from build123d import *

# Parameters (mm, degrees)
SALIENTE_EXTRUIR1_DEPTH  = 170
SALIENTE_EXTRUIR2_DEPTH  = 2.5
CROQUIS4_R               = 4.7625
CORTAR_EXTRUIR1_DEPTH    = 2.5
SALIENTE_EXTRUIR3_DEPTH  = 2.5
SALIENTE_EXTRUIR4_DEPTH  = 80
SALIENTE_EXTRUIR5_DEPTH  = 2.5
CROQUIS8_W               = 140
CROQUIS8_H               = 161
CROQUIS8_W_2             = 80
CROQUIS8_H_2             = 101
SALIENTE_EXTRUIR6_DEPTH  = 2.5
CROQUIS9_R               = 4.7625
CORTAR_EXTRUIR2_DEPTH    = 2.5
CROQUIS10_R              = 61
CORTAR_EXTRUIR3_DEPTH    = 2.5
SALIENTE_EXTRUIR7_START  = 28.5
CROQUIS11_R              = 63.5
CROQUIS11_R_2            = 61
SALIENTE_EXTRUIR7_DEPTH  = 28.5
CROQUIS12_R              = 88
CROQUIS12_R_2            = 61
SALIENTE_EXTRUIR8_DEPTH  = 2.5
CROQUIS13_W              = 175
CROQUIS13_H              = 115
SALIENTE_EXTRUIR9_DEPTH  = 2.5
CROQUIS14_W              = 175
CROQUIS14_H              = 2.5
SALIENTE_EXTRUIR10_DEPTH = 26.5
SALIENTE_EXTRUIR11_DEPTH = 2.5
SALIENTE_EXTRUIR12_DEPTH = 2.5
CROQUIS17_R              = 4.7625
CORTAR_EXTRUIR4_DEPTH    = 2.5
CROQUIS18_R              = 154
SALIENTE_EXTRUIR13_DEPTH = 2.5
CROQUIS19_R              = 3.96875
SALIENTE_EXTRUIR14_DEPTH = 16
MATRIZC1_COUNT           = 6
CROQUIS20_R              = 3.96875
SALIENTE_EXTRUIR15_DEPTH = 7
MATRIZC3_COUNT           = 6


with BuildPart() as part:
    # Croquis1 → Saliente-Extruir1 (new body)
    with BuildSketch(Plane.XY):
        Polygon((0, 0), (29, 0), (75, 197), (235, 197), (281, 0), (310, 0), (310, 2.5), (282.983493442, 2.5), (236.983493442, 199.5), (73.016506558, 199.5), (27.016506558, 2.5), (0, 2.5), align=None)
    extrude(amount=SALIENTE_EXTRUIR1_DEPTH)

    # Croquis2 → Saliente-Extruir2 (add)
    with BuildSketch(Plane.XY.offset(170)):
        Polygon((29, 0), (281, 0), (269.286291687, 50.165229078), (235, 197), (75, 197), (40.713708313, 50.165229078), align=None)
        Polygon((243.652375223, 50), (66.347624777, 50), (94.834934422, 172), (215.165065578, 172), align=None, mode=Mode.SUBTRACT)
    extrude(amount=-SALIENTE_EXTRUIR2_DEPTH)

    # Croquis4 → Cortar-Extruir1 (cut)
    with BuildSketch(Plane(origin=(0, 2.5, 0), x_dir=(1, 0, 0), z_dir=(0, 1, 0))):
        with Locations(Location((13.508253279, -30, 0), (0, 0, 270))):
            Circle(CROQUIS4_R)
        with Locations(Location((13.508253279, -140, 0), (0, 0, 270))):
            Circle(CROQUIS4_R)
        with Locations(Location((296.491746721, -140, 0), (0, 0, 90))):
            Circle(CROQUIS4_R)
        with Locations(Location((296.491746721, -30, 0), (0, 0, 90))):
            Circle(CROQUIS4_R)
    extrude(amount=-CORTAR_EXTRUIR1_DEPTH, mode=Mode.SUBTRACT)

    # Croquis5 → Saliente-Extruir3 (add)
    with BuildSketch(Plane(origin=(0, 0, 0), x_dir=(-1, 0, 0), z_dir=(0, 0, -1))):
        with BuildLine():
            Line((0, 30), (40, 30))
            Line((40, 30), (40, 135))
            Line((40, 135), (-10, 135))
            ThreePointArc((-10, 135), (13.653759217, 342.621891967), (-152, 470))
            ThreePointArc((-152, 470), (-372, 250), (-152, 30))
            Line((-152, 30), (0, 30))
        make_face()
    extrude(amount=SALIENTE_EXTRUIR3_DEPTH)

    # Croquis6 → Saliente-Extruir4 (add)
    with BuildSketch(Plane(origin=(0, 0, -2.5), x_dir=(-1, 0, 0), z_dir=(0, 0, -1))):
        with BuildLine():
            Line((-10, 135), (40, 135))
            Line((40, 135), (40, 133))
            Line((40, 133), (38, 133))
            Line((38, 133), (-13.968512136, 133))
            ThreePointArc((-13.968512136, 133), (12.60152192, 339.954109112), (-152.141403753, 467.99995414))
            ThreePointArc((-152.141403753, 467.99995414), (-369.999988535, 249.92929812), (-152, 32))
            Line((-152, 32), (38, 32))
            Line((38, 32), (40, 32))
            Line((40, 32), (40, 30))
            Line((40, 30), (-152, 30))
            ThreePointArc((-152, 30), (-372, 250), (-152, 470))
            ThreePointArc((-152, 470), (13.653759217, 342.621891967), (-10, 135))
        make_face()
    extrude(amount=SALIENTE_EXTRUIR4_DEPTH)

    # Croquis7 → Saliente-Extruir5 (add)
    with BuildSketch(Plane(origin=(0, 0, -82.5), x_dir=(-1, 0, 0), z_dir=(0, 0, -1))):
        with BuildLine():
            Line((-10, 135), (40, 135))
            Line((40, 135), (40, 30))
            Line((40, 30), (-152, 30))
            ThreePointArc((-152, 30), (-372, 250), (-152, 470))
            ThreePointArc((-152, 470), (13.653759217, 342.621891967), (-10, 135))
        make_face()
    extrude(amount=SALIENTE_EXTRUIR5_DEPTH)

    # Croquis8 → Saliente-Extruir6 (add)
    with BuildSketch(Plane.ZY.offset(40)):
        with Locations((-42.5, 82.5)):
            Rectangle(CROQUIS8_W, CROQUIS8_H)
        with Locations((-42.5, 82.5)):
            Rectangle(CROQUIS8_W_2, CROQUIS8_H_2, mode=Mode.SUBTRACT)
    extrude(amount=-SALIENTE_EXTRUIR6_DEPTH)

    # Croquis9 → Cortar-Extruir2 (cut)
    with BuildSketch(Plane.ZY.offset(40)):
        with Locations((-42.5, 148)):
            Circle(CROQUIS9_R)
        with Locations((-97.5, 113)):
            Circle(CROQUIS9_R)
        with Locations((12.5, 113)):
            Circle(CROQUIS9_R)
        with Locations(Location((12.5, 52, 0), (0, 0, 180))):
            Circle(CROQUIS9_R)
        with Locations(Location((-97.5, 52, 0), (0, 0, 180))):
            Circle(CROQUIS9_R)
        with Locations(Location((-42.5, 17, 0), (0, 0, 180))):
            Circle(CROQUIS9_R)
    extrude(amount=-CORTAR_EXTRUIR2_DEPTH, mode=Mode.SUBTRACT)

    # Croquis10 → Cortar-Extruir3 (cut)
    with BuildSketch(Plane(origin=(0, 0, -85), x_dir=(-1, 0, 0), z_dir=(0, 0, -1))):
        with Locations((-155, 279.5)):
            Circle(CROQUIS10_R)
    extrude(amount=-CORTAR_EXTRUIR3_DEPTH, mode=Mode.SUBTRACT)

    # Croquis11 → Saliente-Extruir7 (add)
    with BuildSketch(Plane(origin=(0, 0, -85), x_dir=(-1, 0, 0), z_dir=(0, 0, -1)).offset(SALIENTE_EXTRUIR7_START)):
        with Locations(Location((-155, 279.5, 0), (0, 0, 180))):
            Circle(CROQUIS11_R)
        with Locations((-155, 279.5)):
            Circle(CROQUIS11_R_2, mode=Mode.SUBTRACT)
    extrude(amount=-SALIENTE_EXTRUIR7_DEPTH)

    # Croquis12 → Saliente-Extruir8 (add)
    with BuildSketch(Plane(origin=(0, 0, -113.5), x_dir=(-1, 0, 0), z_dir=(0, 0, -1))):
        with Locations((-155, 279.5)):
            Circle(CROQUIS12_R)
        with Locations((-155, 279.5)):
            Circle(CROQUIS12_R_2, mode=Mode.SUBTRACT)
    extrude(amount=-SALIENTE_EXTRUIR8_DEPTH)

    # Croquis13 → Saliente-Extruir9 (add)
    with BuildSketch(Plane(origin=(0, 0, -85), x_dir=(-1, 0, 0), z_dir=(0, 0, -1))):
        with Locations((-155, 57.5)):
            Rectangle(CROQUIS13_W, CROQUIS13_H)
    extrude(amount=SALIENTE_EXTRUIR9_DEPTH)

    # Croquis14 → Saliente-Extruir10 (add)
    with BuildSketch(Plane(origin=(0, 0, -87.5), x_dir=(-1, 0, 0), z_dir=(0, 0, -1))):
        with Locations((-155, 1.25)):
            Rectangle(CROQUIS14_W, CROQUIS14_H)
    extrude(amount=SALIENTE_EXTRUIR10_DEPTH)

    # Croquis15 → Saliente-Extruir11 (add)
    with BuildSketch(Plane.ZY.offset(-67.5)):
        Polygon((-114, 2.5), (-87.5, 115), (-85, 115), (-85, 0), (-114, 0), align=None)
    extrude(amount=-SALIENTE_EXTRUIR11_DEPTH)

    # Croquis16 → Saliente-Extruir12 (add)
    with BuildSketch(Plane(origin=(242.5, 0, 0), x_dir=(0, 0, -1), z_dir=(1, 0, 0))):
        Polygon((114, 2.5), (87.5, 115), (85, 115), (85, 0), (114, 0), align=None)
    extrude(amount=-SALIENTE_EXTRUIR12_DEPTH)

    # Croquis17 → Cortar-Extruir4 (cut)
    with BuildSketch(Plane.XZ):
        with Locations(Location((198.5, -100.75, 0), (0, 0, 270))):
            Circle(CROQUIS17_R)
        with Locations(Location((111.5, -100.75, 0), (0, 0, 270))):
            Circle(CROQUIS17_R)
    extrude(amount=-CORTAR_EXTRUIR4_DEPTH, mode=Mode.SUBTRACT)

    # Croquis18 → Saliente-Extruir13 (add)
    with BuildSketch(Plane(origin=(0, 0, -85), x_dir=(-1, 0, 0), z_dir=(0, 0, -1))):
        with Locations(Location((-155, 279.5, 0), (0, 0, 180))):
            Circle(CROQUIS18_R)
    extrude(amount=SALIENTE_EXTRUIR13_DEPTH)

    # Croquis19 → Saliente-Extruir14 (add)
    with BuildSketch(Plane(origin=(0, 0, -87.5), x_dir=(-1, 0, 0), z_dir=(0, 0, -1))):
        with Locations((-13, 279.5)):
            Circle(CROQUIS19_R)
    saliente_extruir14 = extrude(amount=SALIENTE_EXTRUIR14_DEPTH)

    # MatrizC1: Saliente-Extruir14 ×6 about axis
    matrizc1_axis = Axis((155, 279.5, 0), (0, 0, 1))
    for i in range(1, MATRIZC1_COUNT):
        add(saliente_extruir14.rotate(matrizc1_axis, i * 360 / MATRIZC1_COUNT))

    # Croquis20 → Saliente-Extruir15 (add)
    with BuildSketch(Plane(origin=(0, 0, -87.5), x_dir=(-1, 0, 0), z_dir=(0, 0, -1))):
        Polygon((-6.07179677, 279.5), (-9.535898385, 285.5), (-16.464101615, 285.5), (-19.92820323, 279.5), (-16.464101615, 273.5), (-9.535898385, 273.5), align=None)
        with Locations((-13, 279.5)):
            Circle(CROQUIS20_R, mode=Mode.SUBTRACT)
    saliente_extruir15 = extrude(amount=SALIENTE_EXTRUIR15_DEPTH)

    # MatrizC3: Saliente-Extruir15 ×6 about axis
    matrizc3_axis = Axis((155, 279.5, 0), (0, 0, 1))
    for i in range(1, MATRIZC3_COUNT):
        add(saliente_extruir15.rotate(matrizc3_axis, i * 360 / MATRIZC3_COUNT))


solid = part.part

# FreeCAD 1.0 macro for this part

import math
import FreeCAD as App
import Part
import Sketcher
from FreeCAD import Vector
Q = App.Units.Quantity


def add_polygon(sketch, points):
    """Adds a closed chain of lines whose ends are joined by coincident constraints."""
    first, n = sketch.GeometryCount, len(points)
    for a, b in zip(points, points[1:] + points[:1]):
        sketch.addGeometry(Part.LineSegment(App.Vector(*a, 0), App.Vector(*b, 0)), False)
    for i in range(n):
        sketch.addConstraint(Sketcher.Constraint("Coincident", first + i, 2, first + (i + 1) % n, 1))

doc = App.newDocument("Part")
body = doc.addObject("PartDesign::Body", "Body")

# Sketch on XY plane
sketch1 = body.newObject("Sketcher::SketchObject", "Sketch")
sketch1.AttachmentSupport = (doc.getObject("XY_Plane"), [""])
sketch1.MapMode = "FlatFace"
add_polygon(sketch1, [(0, 0), (29, 0), (75, 197), (235, 197), (281, 0), (310, 0), (310, 2.5), (283, 2.5), (237, 199.5), (73, 199.5), (27, 2.5), (0, 2.5)])  # lines 0-11
sketch1.addConstraint([
    Sketcher.Constraint("Horizontal", 0),
    Sketcher.Constraint("Horizontal", 2),
    Sketcher.Constraint("Horizontal", 4),
    Sketcher.Constraint("Vertical", 5),
    Sketcher.Constraint("Horizontal", 6),
    Sketcher.Constraint("Horizontal", 8),
    Sketcher.Constraint("Horizontal", 10),
    Sketcher.Constraint("Vertical", 11),
    Sketcher.Constraint("Coincident", 11, 2, -1, 1),
    Sketcher.Constraint("PointOnObject", 3, 2, -1),
    Sketcher.Constraint("Parallel", 3, 7),
    Sketcher.Constraint("Parallel", 1, 9),
    Sketcher.Constraint("Horizontal", 6, 2, 9, 2),
    Sketcher.Constraint("Equal", 0, 4),
    Sketcher.Constraint("Equal", 6, 10),
    Sketcher.Constraint("Equal", 1, 3),
    Sketcher.Constraint("Equal", 3, 7),
    Sketcher.Constraint("DistanceX", 0, 1, 0, 2, Q("29 mm")),
    Sketcher.Constraint("DistanceX", 2, 1, 2, 2, Q("160 mm")),
    Sketcher.Constraint("DistanceY", 5, 1, 5, 2, Q("2.5 mm")),
    Sketcher.Constraint("DistanceX", -1, 1, 1, 2, Q("75 mm")),
    Sketcher.Constraint("DistanceY", -1, 1, 1, 2, Q("197 mm")),
    Sketcher.Constraint("DistanceX", 6, 2, 6, 1, Q("27.016507 mm")),
])
pad1 = body.newObject("PartDesign::Pad", "Pad")
pad1.Profile = sketch1
pad1.Length = 170

# Sketch on XY plane
sketch2 = body.newObject("Sketcher::SketchObject", "Sketch001")
sketch2.AttachmentSupport = (doc.getObject("XY_Plane"), [""])
sketch2.MapMode = "FlatFace"
sketch2.AttachmentOffset = App.Placement(Vector(0, 0, 170), App.Rotation())
add_polygon(sketch2, [(29, 0), (281, 0), (269, 50), (235, 197), (75, 197), (41, 50)])  # lines 0-5
add_polygon(sketch2, [(215, 172), (244, 50), (66, 50), (95, 172)])  # lines 6-9
sketch2.addConstraint([
    Sketcher.Constraint("Horizontal", 0),
    Sketcher.Constraint("Horizontal", 3),
    Sketcher.Constraint("Horizontal", 7),
    Sketcher.Constraint("Horizontal", 9),
    Sketcher.Constraint("PointOnObject", 0, 2, -1),
    Sketcher.Constraint("Parallel", 1, 2),
    Sketcher.Constraint("Parallel", 4, 5),
    Sketcher.Constraint("Parallel", 2, 6),
    Sketcher.Constraint("Parallel", 5, 8),
    Sketcher.Constraint("Horizontal", 1, 2, 4, 2),
    Sketcher.Constraint("Equal", 2, 4),
    Sketcher.Constraint("DistanceX", 0, 1, 0, 2, Q("252 mm")),
    Sketcher.Constraint("DistanceX", 3, 2, 3, 1, Q("160 mm")),
    Sketcher.Constraint("DistanceX", -1, 1, 0, 2, Q("281 mm")),
    Sketcher.Constraint("DistanceY", -1, 1, 2, 2, Q("197 mm")),
    Sketcher.Constraint("DistanceY", -1, 1, 6, 2, Q("50 mm")),
    Sketcher.Constraint("DistanceY", -1, 1, 8, 2, Q("172 mm")),
    Sketcher.Constraint("DistanceX", 7, 2, 7, 1, Q("177.30475 mm")),
    Sketcher.Constraint("Distance", 1, Q("51.514669 mm")),
    Sketcher.Constraint("DistanceX", -1, 1, 6, 2, Q("243.652375 mm")),
])
pad2 = body.newObject("PartDesign::Pad", "Pad001")
pad2.Profile = sketch2
pad2.Length = 2.5
pad2.Reversed = True

# Sketch on XZ plane
sketch3 = body.newObject("Sketcher::SketchObject", "Sketch002")
sketch3.AttachmentSupport = (doc.getObject("XZ_Plane"), [""])
sketch3.MapMode = "FlatFace"
sketch3.AttachmentOffset = App.Placement(Vector(0, 0, -2.5), App.Rotation())
sketch3.addGeometry([
    Part.Circle(Vector(13.5, 30, 0), Vector(0, 0, 1), 4.8),
    Part.Circle(Vector(13.5, 140, 0), Vector(0, 0, 1), 4.8),
    Part.Circle(Vector(296.5, 140, 0), Vector(0, 0, 1), 4.8),
    Part.Circle(Vector(296.5, 30, 0), Vector(0, 0, 1), 4.8),
], False)
sketch3.addConstraint([
    Sketcher.Constraint("Equal", 0, 1),
    Sketcher.Constraint("Equal", 1, 2),
    Sketcher.Constraint("Equal", 2, 3),
    Sketcher.Constraint("Horizontal", 1, 3, 2, 3),
    Sketcher.Constraint("Horizontal", 0, 3, 3, 3),
    Sketcher.Constraint("Vertical", 0, 3, 1, 3),
    Sketcher.Constraint("Vertical", 2, 3, 3, 3),
    Sketcher.Constraint("Diameter", 0, Q("9.525 mm")),
    Sketcher.Constraint("DistanceY", -1, 1, 0, 3, Q("30 mm")),
    Sketcher.Constraint("DistanceY", -1, 1, 1, 3, Q("140 mm")),
    Sketcher.Constraint("DistanceX", -1, 1, 0, 3, Q("13.508253 mm")),
    Sketcher.Constraint("DistanceX", -1, 1, 2, 3, Q("296.491747 mm")),
])
pocket1 = body.newObject("PartDesign::Pocket", "Pocket")
pocket1.Profile = sketch3
pocket1.Length = 2.5
pocket1.Reversed = True

# Sketch on XY plane
sketch4 = body.newObject("Sketcher::SketchObject", "Sketch003")
sketch4.AttachmentSupport = (doc.getObject("XY_Plane"), [""])
sketch4.MapMode = "FlatFace"
sketch4.addGeometry([
    Part.LineSegment(Vector(-40, 30, 0), Vector(-40, 135, 0)),  # 0
    Part.LineSegment(Vector(-40, 135, 0), Vector(10, 135, 0)),  # 1
    Part.ArcOfCircle(Part.Circle(Vector(182, 260, 0), Vector(0, 0, 1), 212), math.radians(98), math.radians(216)),  # 2
    Part.ArcOfCircle(Part.Circle(Vector(152, 250, 0), Vector(0, 0, 1), 220), math.radians(-90), math.radians(90)),  # 3
    Part.LineSegment(Vector(152, 30, 0), Vector(-40, 30, 0)),  # 4
], False)
sketch4.addConstraint([
    Sketcher.Constraint("Coincident", 0, 2, 1, 1),
    Sketcher.Constraint("Coincident", 1, 2, 2, 2),
    Sketcher.Constraint("Coincident", 2, 1, 3, 2),
    Sketcher.Constraint("Tangent", 3, 1, 4, 1),
    Sketcher.Constraint("Coincident", 4, 2, 0, 1),
    Sketcher.Constraint("Vertical", 0),
    Sketcher.Constraint("Horizontal", 1),
    Sketcher.Constraint("Horizontal", 4),
    Sketcher.Constraint("Vertical", 3, 3, 2, 1),
    Sketcher.Constraint("Radius", 3, Q("220 mm")),
    Sketcher.Constraint("DistanceX", 1, 1, 1, 2, Q("50 mm")),
    Sketcher.Constraint("DistanceX", 4, 2, 4, 1, Q("192 mm")),
    Sketcher.Constraint("DistanceY", 0, 1, 0, 2, Q("105 mm")),
    Sketcher.Constraint("DistanceX", -1, 1, 3, 3, Q("152 mm")),
    Sketcher.Constraint("DistanceY", -1, 1, 3, 3, Q("250 mm")),
    Sketcher.Constraint("Radius", 2, Q("212.372309 mm")),
])
pad3 = body.newObject("PartDesign::Pad", "Pad002")
pad3.Profile = sketch4
pad3.Length = 2.5
pad3.Reversed = True

# Sketch on XY plane
sketch5 = body.newObject("Sketcher::SketchObject", "Sketch004")
sketch5.AttachmentSupport = (doc.getObject("XY_Plane"), [""])
sketch5.MapMode = "FlatFace"
sketch5.AttachmentOffset = App.Placement(Vector(0, 0, -2.5), App.Rotation())
sketch5.addGeometry([
    Part.LineSegment(Vector(-40, 135, 0), Vector(10, 135, 0)),  # 0
    Part.ArcOfCircle(Part.Circle(Vector(181.9, 259.7, 0), Vector(0, 0, 1), 212.4), math.radians(98), math.radians(216)),  # 1
    Part.ArcOfCircle(Part.Circle(Vector(152, 250, 0), Vector(0, 0, 1), 220), math.radians(-90), math.radians(90)),  # 2
    Part.LineSegment(Vector(152, 30, 0), Vector(-40, 30, 0)),  # 3
    Part.LineSegment(Vector(-40, 30, 0), Vector(-40, 32, 0)),  # 4
    Part.LineSegment(Vector(-40, 32, 0), Vector(152, 32, 0)),  # 5
    Part.ArcOfCircle(Part.Circle(Vector(152, 250, 0), Vector(0, 0, 1), 218), math.radians(-90), math.radians(90)),  # 6
    Part.ArcOfCircle(Part.Circle(Vector(181.9, 259.7, 0), Vector(0, 0, 1), 210.4), math.radians(98), math.radians(217)),  # 7
    Part.LineSegment(Vector(14, 133, 0), Vector(-40, 133, 0)),  # 8
    Part.LineSegment(Vector(-40, 133, 0), Vector(-40, 135, 0)),  # 9
], False)
sketch5.addConstraint([
    Sketcher.Constraint("Coincident", 0, 2, 1, 2),
    Sketcher.Constraint("Coincident", 1, 1, 2, 2),
    Sketcher.Constraint("Tangent", 2, 1, 3, 1),
    Sketcher.Constraint("Coincident", 3, 2, 4, 1),
    Sketcher.Constraint("Coincident", 4, 2, 5, 1),
    Sketcher.Constraint("Tangent", 5, 2, 6, 1),
    Sketcher.Constraint("Coincident", 6, 2, 7, 1),
    Sketcher.Constraint("Coincident", 7, 2, 8, 1),
    Sketcher.Constraint("Coincident", 8, 2, 9, 1),
    Sketcher.Constraint("Coincident", 9, 2, 0, 1),
    Sketcher.Constraint("Horizontal", 0),
    Sketcher.Constraint("Horizontal", 3),
    Sketcher.Constraint("Vertical", 4),
    Sketcher.Constraint("Horizontal", 5),
    Sketcher.Constraint("Horizontal", 8),
    Sketcher.Constraint("Vertical", 9),
    Sketcher.Constraint("Coincident", 6, 3, 2, 3),
    Sketcher.Constraint("Coincident", 7, 3, 1, 3),
    Sketcher.Constraint("Vertical", 6, 3, 1, 1),
    Sketcher.Constraint("Vertical", 4, 2, 8, 2),
    Sketcher.Constraint("Equal", 4, 9),
    Sketcher.Constraint("Radius", 2, Q("220 mm")),
    Sketcher.Constraint("Radius", 6, Q("218 mm")),
    Sketcher.Constraint("DistanceX", 0, 1, 0, 2, Q("50 mm")),
    Sketcher.Constraint("DistanceX", 3, 2, 3, 1, Q("192 mm")),
    Sketcher.Constraint("DistanceX", -1, 1, 2, 3, Q("152 mm")),
    Sketcher.Constraint("DistanceY", -1, 1, 2, 3, Q("250 mm")),
    Sketcher.Constraint("DistanceY", -1, 1, 0, 2, Q("135 mm")),
    Sketcher.Constraint("Radius", 1, Q("212.372309 mm")),
    Sketcher.Constraint("Radius", 7, Q("210.372309 mm")),
])
pad4 = body.newObject("PartDesign::Pad", "Pad003")
pad4.Profile = sketch5
pad4.Length = 80
pad4.Reversed = True

# Sketch on XY plane
sketch6 = body.newObject("Sketcher::SketchObject", "Sketch005")
sketch6.AttachmentSupport = (doc.getObject("XY_Plane"), [""])
sketch6.MapMode = "FlatFace"
sketch6.AttachmentOffset = App.Placement(Vector(0, 0, -82.5), App.Rotation())
sketch6.addGeometry([
    Part.LineSegment(Vector(-40, 135, 0), Vector(10, 135, 0)),  # 0
    Part.ArcOfCircle(Part.Circle(Vector(182, 260, 0), Vector(0, 0, 1), 212), math.radians(98), math.radians(216)),  # 1
    Part.ArcOfCircle(Part.Circle(Vector(152, 250, 0), Vector(0, 0, 1), 220), math.radians(-90), math.radians(90)),  # 2
    Part.LineSegment(Vector(152, 30, 0), Vector(-40, 30, 0)),  # 3
    Part.LineSegment(Vector(-40, 30, 0), Vector(-40, 135, 0)),  # 4
], False)
sketch6.addConstraint([
    Sketcher.Constraint("Coincident", 0, 2, 1, 2),
    Sketcher.Constraint("Coincident", 1, 1, 2, 2),
    Sketcher.Constraint("Tangent", 2, 1, 3, 1),
    Sketcher.Constraint("Coincident", 3, 2, 4, 1),
    Sketcher.Constraint("Coincident", 4, 2, 0, 1),
    Sketcher.Constraint("Horizontal", 0),
    Sketcher.Constraint("Horizontal", 3),
    Sketcher.Constraint("Vertical", 4),
    Sketcher.Constraint("Vertical", 2, 3, 1, 1),
    Sketcher.Constraint("Radius", 2, Q("220 mm")),
    Sketcher.Constraint("DistanceX", 0, 1, 0, 2, Q("50 mm")),
    Sketcher.Constraint("DistanceX", 3, 2, 3, 1, Q("192 mm")),
    Sketcher.Constraint("DistanceY", 4, 1, 4, 2, Q("105 mm")),
    Sketcher.Constraint("DistanceX", -1, 1, 2, 3, Q("152 mm")),
    Sketcher.Constraint("DistanceY", -1, 1, 2, 3, Q("250 mm")),
    Sketcher.Constraint("Radius", 1, Q("212.372309 mm")),
])
pad5 = body.newObject("PartDesign::Pad", "Pad004")
pad5.Profile = sketch6
pad5.Length = 2.5
pad5.Reversed = True

# Sketch on YZ plane
sketch7 = body.newObject("Sketcher::SketchObject", "Sketch006")
sketch7.AttachmentSupport = (doc.getObject("YZ_Plane"), [""])
sketch7.MapMode = "FlatFace"
sketch7.AttachmentOffset = App.Placement(Vector(0, 0, -40), App.Rotation())
add_polygon(sketch7, [(163, -112), (2, -112), (2, 28), (163, 28)])  # lines 0-3
add_polygon(sketch7, [(32, -2), (32, -82), (133, -82), (133, -2)])  # lines 4-7
sketch7.addConstraint([
    Sketcher.Constraint("Horizontal", 0),
    Sketcher.Constraint("Vertical", 1),
    Sketcher.Constraint("Horizontal", 2),
    Sketcher.Constraint("Vertical", 3),
    Sketcher.Constraint("Vertical", 4),
    Sketcher.Constraint("Horizontal", 5),
    Sketcher.Constraint("Vertical", 6),
    Sketcher.Constraint("Horizontal", 7),
    Sketcher.Constraint("DistanceX", 0, 2, 0, 1, Q("161 mm")),
    Sketcher.Constraint("DistanceX", 5, 1, 5, 2, Q("101 mm")),
    Sketcher.Constraint("DistanceY", 1, 1, 1, 2, Q("140 mm")),
    Sketcher.Constraint("DistanceY", 4, 2, 4, 1, Q("80 mm")),
    Sketcher.Constraint("DistanceX", -1, 1, 0, 2, Q("2 mm")),
    Sketcher.Constraint("DistanceX", -1, 1, 4, 2, Q("32 mm")),
    Sketcher.Constraint("DistanceY", 0, 2, 4, 2, Q("30 mm")),
    Sketcher.Constraint("DistanceY", 0, 2, -1, 1, Q("112.5 mm")),
])
pad6 = body.newObject("PartDesign::Pad", "Pad005")
pad6.Profile = sketch7
pad6.Length = 2.5

# Sketch on YZ plane
sketch8 = body.newObject("Sketcher::SketchObject", "Sketch007")
sketch8.AttachmentSupport = (doc.getObject("YZ_Plane"), [""])
sketch8.MapMode = "FlatFace"
sketch8.AttachmentOffset = App.Placement(Vector(0, 0, -40), App.Rotation())
sketch8.addGeometry([
    Part.Circle(Vector(148, -42.5, 0), Vector(0, 0, 1), 4.8),  # 0
    Part.Circle(Vector(113, -97.5, 0), Vector(0, 0, 1), 4.8),  # 1
    Part.Circle(Vector(113, 12.5, 0), Vector(0, 0, 1), 4.8),  # 2
    Part.Circle(Vector(52, 12.5, 0), Vector(0, 0, 1), 4.8),  # 3
    Part.Circle(Vector(52, -97.5, 0), Vector(0, 0, 1), 4.8),  # 4
    Part.Circle(Vector(17, -42.5, 0), Vector(0, 0, 1), 4.8),  # 5
], False)
sketch8.addConstraint([
    Sketcher.Constraint("Equal", 0, 1),
    Sketcher.Constraint("Equal", 1, 2),
    Sketcher.Constraint("Equal", 2, 3),
    Sketcher.Constraint("Equal", 3, 4),
    Sketcher.Constraint("Equal", 4, 5),
    Sketcher.Constraint("Horizontal", 2, 3, 3, 3),
    Sketcher.Constraint("Horizontal", 1, 3, 4, 3),
    Sketcher.Constraint("Horizontal", 0, 3, 5, 3),
    Sketcher.Constraint("Vertical", 1, 3, 2, 3),
    Sketcher.Constraint("Vertical", 3, 3, 4, 3),
    Sketcher.Constraint("Diameter", 0, Q("9.525 mm")),
    Sketcher.Constraint("DistanceX", -1, 1, 0, 3, Q("148 mm")),
    Sketcher.Constraint("DistanceX", -1, 1, 1, 3, Q("113 mm")),
    Sketcher.Constraint("DistanceX", -1, 1, 3, 3, Q("52 mm")),
    Sketcher.Constraint("DistanceX", -1, 1, 5, 3, Q("17 mm")),
    Sketcher.Constraint("DistanceY", 1, 3, 0, 3, Q("55 mm")),
    Sketcher.Constraint("DistanceY", 0, 3, 2, 3, Q("55 mm")),
    Sketcher.Constraint("DistanceY", 0, 3, -1, 1, Q("42.5 mm")),
])
pocket2 = body.newObject("PartDesign::Pocket", "Pocket001")
pocket2.Profile = sketch8
pocket2.Length = 2.5
pocket2.Reversed = True

# Sketch on XY plane
sketch9 = body.newObject("Sketcher::SketchObject", "Sketch008")
sketch9.AttachmentSupport = (doc.getObject("XY_Plane"), [""])
sketch9.MapMode = "FlatFace"
sketch9.AttachmentOffset = App.Placement(Vector(0, 0, -85), App.Rotation())
sketch9.addGeometry(Part.Circle(Vector(155, 280, 0), Vector(0, 0, 1), 61), False)
sketch9.addConstraint([
    Sketcher.Constraint("Diameter", 0, Q("122 mm")),
    Sketcher.Constraint("DistanceX", -1, 1, 0, 3, Q("155 mm")),
    Sketcher.Constraint("DistanceY", -1, 1, 0, 3, Q("279.5 mm")),
])
pocket3 = body.newObject("PartDesign::Pocket", "Pocket002")
pocket3.Profile = sketch9
pocket3.Length = 2.5
pocket3.Reversed = True

# Sketch on XY plane
sketch10 = body.newObject("Sketcher::SketchObject", "Sketch009")
sketch10.AttachmentSupport = (doc.getObject("XY_Plane"), [""])
sketch10.MapMode = "FlatFace"
sketch10.AttachmentOffset = App.Placement(Vector(0, 0, -113.5), App.Rotation())
sketch10.addGeometry([
    Part.Circle(Vector(155, 280, 0), Vector(0, 0, 1), 64),
    Part.Circle(Vector(155, 280, 0), Vector(0, 0, 1), 61),
], False)
sketch10.addConstraint([
    Sketcher.Constraint("Coincident", 1, 3, 0, 3),
    Sketcher.Constraint("Diameter", 0, Q("127 mm")),
    Sketcher.Constraint("Diameter", 1, Q("122 mm")),
    Sketcher.Constraint("DistanceX", -1, 1, 0, 3, Q("155 mm")),
    Sketcher.Constraint("DistanceY", -1, 1, 0, 3, Q("279.5 mm")),
])
pad7 = body.newObject("PartDesign::Pad", "Pad006")
pad7.Profile = sketch10
pad7.Length = 28.5

# Sketch on XY plane
sketch11 = body.newObject("Sketcher::SketchObject", "Sketch010")
sketch11.AttachmentSupport = (doc.getObject("XY_Plane"), [""])
sketch11.MapMode = "FlatFace"
sketch11.AttachmentOffset = App.Placement(Vector(0, 0, -113.5), App.Rotation())
sketch11.addGeometry([
    Part.Circle(Vector(155, 280, 0), Vector(0, 0, 1), 88),
    Part.Circle(Vector(155, 280, 0), Vector(0, 0, 1), 61),
], False)
sketch11.addConstraint([
    Sketcher.Constraint("Coincident", 1, 3, 0, 3),
    Sketcher.Constraint("Diameter", 0, Q("176 mm")),
    Sketcher.Constraint("Diameter", 1, Q("122 mm")),
    Sketcher.Constraint("DistanceX", -1, 1, 0, 3, Q("155 mm")),
    Sketcher.Constraint("DistanceY", -1, 1, 0, 3, Q("279.5 mm")),
])
pad8 = body.newObject("PartDesign::Pad", "Pad007")
pad8.Profile = sketch11
pad8.Length = 2.5

# Sketch on XY plane
sketch12 = body.newObject("Sketcher::SketchObject", "Sketch011")
sketch12.AttachmentSupport = (doc.getObject("XY_Plane"), [""])
sketch12.MapMode = "FlatFace"
sketch12.AttachmentOffset = App.Placement(Vector(0, 0, -85), App.Rotation())
add_polygon(sketch12, [(242, 115), (242, 0), (68, 0), (68, 115)])  # lines 0-3
sketch12.addConstraint([
    Sketcher.Constraint("Vertical", 0),
    Sketcher.Constraint("Horizontal", 1),
    Sketcher.Constraint("Vertical", 2),
    Sketcher.Constraint("Horizontal", 3),
    Sketcher.Constraint("PointOnObject", 0, 2, -1),
    Sketcher.Constraint("DistanceX", 1, 2, 1, 1, Q("175 mm")),
    Sketcher.Constraint("DistanceY", 0, 2, 0, 1, Q("115 mm")),
    Sketcher.Constraint("DistanceX", -1, 1, 0, 2, Q("242.5 mm")),
])
pad9 = body.newObject("PartDesign::Pad", "Pad008")
pad9.Profile = sketch12
pad9.Length = 2.5
pad9.Reversed = True

# Sketch on XY plane
sketch13 = body.newObject("Sketcher::SketchObject", "Sketch012")
sketch13.AttachmentSupport = (doc.getObject("XY_Plane"), [""])
sketch13.MapMode = "FlatFace"
sketch13.AttachmentOffset = App.Placement(Vector(0, 0, -87.5), App.Rotation())
add_polygon(sketch13, [(242.5, 2.5), (242.5, 0), (67.5, 0), (67.5, 2.5)])  # lines 0-3
sketch13.addConstraint([
    Sketcher.Constraint("Vertical", 0),
    Sketcher.Constraint("Horizontal", 1),
    Sketcher.Constraint("Vertical", 2),
    Sketcher.Constraint("Horizontal", 3),
    Sketcher.Constraint("PointOnObject", 0, 2, -1),
    Sketcher.Constraint("DistanceX", 1, 2, 1, 1, Q("175 mm")),
    Sketcher.Constraint("DistanceY", 0, 2, 0, 1, Q("2.5 mm")),
    Sketcher.Constraint("DistanceX", -1, 1, 0, 2, Q("242.5 mm")),
])
pad10 = body.newObject("PartDesign::Pad", "Pad009")
pad10.Profile = sketch13
pad10.Length = 26.5
pad10.Reversed = True

# Sketch on YZ plane
sketch14 = body.newObject("Sketcher::SketchObject", "Sketch013")
sketch14.AttachmentSupport = (doc.getObject("YZ_Plane"), [""])
sketch14.MapMode = "FlatFace"
sketch14.AttachmentOffset = App.Placement(Vector(0, 0, 67.5), App.Rotation())
add_polygon(sketch14, [(115, -87.5), (2.5, -114), (0, -114), (0, -85), (115, -85)])  # lines 0-4
sketch14.addConstraint([
    Sketcher.Constraint("Horizontal", 1),
    Sketcher.Constraint("Vertical", 2),
    Sketcher.Constraint("Horizontal", 3),
    Sketcher.Constraint("Vertical", 4),
    Sketcher.Constraint("PointOnObject", 1, 2, -2),
    Sketcher.Constraint("Equal", 1, 4),
    Sketcher.Constraint("DistanceX", 3, 1, 3, 2, Q("115 mm")),
    Sketcher.Constraint("DistanceY", 2, 1, 2, 2, Q("29 mm")),
    Sketcher.Constraint("DistanceX", 1, 2, 1, 1, Q("2.5 mm")),
    Sketcher.Constraint("DistanceY", 0, 2, -1, 1, Q("114 mm")),
])
pad11 = body.newObject("PartDesign::Pad", "Pad010")
pad11.Profile = sketch14
pad11.Length = 2.5

# Sketch on YZ plane
sketch15 = body.newObject("Sketcher::SketchObject", "Sketch014")
sketch15.AttachmentSupport = (doc.getObject("YZ_Plane"), [""])
sketch15.MapMode = "FlatFace"
sketch15.AttachmentOffset = App.Placement(Vector(0, 0, 242.5), App.Rotation())
add_polygon(sketch15, [(2.5, -114), (115, -87.5), (115, -85), (0, -85), (0, -114)])  # lines 0-4
sketch15.addConstraint([
    Sketcher.Constraint("Vertical", 1),
    Sketcher.Constraint("Horizontal", 2),
    Sketcher.Constraint("Vertical", 3),
    Sketcher.Constraint("Horizontal", 4),
    Sketcher.Constraint("PointOnObject", 2, 2, -2),
    Sketcher.Constraint("Equal", 4, 1),
    Sketcher.Constraint("DistanceX", 2, 2, 2, 1, Q("115 mm")),
    Sketcher.Constraint("DistanceY", 3, 2, 3, 1, Q("29 mm")),
    Sketcher.Constraint("DistanceX", 4, 1, 4, 2, Q("2.5 mm")),
    Sketcher.Constraint("DistanceY", 1, 2, -1, 1, Q("85 mm")),
])
pad12 = body.newObject("PartDesign::Pad", "Pad011")
pad12.Profile = sketch15
pad12.Length = 2.5
pad12.Reversed = True

# Sketch on XZ plane
sketch16 = body.newObject("Sketcher::SketchObject", "Sketch015")
sketch16.AttachmentSupport = (doc.getObject("XZ_Plane"), [""])
sketch16.MapMode = "FlatFace"
sketch16.addGeometry([
    Part.Circle(Vector(198.5, -100.8, 0), Vector(0, 0, 1), 4.8),
    Part.Circle(Vector(111.5, -100.8, 0), Vector(0, 0, 1), 4.8),
], False)
sketch16.addConstraint([
    Sketcher.Constraint("Equal", 0, 1),
    Sketcher.Constraint("Horizontal", 0, 3, 1, 3),
    Sketcher.Constraint("Diameter", 0, Q("9.525 mm")),
    Sketcher.Constraint("DistanceX", 1, 3, 0, 3, Q("87 mm")),
    Sketcher.Constraint("DistanceX", -1, 1, 0, 3, Q("198.5 mm")),
    Sketcher.Constraint("DistanceY", 0, 3, -1, 1, Q("100.75 mm")),
])
pocket4 = body.newObject("PartDesign::Pocket", "Pocket003")
pocket4.Profile = sketch16
pocket4.Length = 2.5

# Sketch on XY plane
sketch17 = body.newObject("Sketcher::SketchObject", "Sketch016")
sketch17.AttachmentSupport = (doc.getObject("XY_Plane"), [""])
sketch17.MapMode = "FlatFace"
sketch17.AttachmentOffset = App.Placement(Vector(0, 0, -85), App.Rotation())
sketch17.addGeometry(Part.Circle(Vector(155, 280, 0), Vector(0, 0, 1), 154), False)
sketch17.addConstraint([
    Sketcher.Constraint("Diameter", 0, Q("308 mm")),
    Sketcher.Constraint("DistanceX", -1, 1, 0, 3, Q("155 mm")),
    Sketcher.Constraint("DistanceY", -1, 1, 0, 3, Q("279.5 mm")),
])
pad13 = body.newObject("PartDesign::Pad", "Pad012")
pad13.Profile = sketch17
pad13.Length = 2.5
pad13.Reversed = True

# Sketch on XY plane
sketch18 = body.newObject("Sketcher::SketchObject", "Sketch017")
sketch18.AttachmentSupport = (doc.getObject("XY_Plane"), [""])
sketch18.MapMode = "FlatFace"
sketch18.AttachmentOffset = App.Placement(Vector(0, 0, -87.5), App.Rotation())
sketch18.addGeometry(Part.Circle(Vector(13, 279.5, 0), Vector(0, 0, 1), 4), False)
sketch18.addConstraint([
    Sketcher.Constraint("DistanceX", -1, 1, 0, 3, Q("13 mm")),
    Sketcher.Constraint("Diameter", 0, Q("7.9375 mm")),
    Sketcher.Constraint("DistanceY", -1, 1, 0, 3, Q("279.5 mm")),
])
pad14 = body.newObject("PartDesign::Pad", "Pad013")
pad14.Profile = sketch18
pad14.Length = 16
pad14.Reversed = True
doc.recompute()

datumline = body.newObject("PartDesign::Line", "DatumLine")
datumline.Placement = App.Placement(Vector(155, 279.5, 0), App.Rotation(Vector(0, 0, 1), Vector(0, 0, 1)))
polarpattern = body.newObject("PartDesign::PolarPattern", "PolarPattern")
polarpattern.Originals = [pad14]
polarpattern.Axis = (datumline, [""])
polarpattern.Angle = 360
polarpattern.Occurrences = 6
body.Tip = polarpattern

# Sketch on XY plane
sketch19 = body.newObject("Sketcher::SketchObject", "Sketch018")
sketch19.AttachmentSupport = (doc.getObject("XY_Plane"), [""])
sketch19.MapMode = "FlatFace"
sketch19.AttachmentOffset = App.Placement(Vector(0, 0, -87.5), App.Rotation())
add_polygon(sketch19, [(6.1, 279.5), (9.5, 285.5), (16.5, 285.5), (19.9, 279.5), (16.5, 273.5), (9.5, 273.5)])  # lines 0-5
sketch19.addGeometry(Part.Circle(Vector(13, 279.5, 0), Vector(0, 0, 1), 4), False)  # 6
sketch19.addConstraint([
    Sketcher.Constraint("Horizontal", 1),
    Sketcher.Constraint("Horizontal", 4),
    Sketcher.Constraint("Parallel", 0, 3),
    Sketcher.Constraint("Parallel", 2, 5),
    Sketcher.Constraint("Horizontal", 6, 3, 2, 2),
    Sketcher.Constraint("Horizontal", 2, 2, 5, 2),
    Sketcher.Constraint("Vertical", 1, 2, 3, 2),
    Sketcher.Constraint("Vertical", 0, 2, 4, 2),
    Sketcher.Constraint("Angle", 0, Q("60 deg")),
    Sketcher.Constraint("DistanceX", -1, 1, 6, 3, Q("13 mm")),
    Sketcher.Constraint("DistanceY", 6, 3, 0, 2, Q("6 mm")),
    Sketcher.Constraint("Diameter", 6, Q("7.9375 mm")),
    Sketcher.Constraint("DistanceY", -1, 1, 6, 3, Q("279.5 mm")),
    Sketcher.Constraint("DistanceX", -1, 1, 0, 2, Q("9.535898 mm")),
    Sketcher.Constraint("DistanceX", -1, 1, 1, 2, Q("16.464102 mm")),
])
pad15 = body.newObject("PartDesign::Pad", "Pad014")
pad15.Profile = sketch19
pad15.Length = 7
pad15.Reversed = True
doc.recompute()

datumline2 = body.newObject("PartDesign::Line", "DatumLine001")
datumline2.Placement = App.Placement(Vector(155, 279.5, 0), App.Rotation(Vector(0, 0, 1), Vector(0, 0, 1)))
polarpattern2 = body.newObject("PartDesign::PolarPattern", "PolarPattern001")
polarpattern2.Originals = [pad15]
polarpattern2.Axis = (datumline2, [""])
polarpattern2.Angle = 360
polarpattern2.Occurrences = 6
body.Tip = polarpattern2

doc.recompute()
